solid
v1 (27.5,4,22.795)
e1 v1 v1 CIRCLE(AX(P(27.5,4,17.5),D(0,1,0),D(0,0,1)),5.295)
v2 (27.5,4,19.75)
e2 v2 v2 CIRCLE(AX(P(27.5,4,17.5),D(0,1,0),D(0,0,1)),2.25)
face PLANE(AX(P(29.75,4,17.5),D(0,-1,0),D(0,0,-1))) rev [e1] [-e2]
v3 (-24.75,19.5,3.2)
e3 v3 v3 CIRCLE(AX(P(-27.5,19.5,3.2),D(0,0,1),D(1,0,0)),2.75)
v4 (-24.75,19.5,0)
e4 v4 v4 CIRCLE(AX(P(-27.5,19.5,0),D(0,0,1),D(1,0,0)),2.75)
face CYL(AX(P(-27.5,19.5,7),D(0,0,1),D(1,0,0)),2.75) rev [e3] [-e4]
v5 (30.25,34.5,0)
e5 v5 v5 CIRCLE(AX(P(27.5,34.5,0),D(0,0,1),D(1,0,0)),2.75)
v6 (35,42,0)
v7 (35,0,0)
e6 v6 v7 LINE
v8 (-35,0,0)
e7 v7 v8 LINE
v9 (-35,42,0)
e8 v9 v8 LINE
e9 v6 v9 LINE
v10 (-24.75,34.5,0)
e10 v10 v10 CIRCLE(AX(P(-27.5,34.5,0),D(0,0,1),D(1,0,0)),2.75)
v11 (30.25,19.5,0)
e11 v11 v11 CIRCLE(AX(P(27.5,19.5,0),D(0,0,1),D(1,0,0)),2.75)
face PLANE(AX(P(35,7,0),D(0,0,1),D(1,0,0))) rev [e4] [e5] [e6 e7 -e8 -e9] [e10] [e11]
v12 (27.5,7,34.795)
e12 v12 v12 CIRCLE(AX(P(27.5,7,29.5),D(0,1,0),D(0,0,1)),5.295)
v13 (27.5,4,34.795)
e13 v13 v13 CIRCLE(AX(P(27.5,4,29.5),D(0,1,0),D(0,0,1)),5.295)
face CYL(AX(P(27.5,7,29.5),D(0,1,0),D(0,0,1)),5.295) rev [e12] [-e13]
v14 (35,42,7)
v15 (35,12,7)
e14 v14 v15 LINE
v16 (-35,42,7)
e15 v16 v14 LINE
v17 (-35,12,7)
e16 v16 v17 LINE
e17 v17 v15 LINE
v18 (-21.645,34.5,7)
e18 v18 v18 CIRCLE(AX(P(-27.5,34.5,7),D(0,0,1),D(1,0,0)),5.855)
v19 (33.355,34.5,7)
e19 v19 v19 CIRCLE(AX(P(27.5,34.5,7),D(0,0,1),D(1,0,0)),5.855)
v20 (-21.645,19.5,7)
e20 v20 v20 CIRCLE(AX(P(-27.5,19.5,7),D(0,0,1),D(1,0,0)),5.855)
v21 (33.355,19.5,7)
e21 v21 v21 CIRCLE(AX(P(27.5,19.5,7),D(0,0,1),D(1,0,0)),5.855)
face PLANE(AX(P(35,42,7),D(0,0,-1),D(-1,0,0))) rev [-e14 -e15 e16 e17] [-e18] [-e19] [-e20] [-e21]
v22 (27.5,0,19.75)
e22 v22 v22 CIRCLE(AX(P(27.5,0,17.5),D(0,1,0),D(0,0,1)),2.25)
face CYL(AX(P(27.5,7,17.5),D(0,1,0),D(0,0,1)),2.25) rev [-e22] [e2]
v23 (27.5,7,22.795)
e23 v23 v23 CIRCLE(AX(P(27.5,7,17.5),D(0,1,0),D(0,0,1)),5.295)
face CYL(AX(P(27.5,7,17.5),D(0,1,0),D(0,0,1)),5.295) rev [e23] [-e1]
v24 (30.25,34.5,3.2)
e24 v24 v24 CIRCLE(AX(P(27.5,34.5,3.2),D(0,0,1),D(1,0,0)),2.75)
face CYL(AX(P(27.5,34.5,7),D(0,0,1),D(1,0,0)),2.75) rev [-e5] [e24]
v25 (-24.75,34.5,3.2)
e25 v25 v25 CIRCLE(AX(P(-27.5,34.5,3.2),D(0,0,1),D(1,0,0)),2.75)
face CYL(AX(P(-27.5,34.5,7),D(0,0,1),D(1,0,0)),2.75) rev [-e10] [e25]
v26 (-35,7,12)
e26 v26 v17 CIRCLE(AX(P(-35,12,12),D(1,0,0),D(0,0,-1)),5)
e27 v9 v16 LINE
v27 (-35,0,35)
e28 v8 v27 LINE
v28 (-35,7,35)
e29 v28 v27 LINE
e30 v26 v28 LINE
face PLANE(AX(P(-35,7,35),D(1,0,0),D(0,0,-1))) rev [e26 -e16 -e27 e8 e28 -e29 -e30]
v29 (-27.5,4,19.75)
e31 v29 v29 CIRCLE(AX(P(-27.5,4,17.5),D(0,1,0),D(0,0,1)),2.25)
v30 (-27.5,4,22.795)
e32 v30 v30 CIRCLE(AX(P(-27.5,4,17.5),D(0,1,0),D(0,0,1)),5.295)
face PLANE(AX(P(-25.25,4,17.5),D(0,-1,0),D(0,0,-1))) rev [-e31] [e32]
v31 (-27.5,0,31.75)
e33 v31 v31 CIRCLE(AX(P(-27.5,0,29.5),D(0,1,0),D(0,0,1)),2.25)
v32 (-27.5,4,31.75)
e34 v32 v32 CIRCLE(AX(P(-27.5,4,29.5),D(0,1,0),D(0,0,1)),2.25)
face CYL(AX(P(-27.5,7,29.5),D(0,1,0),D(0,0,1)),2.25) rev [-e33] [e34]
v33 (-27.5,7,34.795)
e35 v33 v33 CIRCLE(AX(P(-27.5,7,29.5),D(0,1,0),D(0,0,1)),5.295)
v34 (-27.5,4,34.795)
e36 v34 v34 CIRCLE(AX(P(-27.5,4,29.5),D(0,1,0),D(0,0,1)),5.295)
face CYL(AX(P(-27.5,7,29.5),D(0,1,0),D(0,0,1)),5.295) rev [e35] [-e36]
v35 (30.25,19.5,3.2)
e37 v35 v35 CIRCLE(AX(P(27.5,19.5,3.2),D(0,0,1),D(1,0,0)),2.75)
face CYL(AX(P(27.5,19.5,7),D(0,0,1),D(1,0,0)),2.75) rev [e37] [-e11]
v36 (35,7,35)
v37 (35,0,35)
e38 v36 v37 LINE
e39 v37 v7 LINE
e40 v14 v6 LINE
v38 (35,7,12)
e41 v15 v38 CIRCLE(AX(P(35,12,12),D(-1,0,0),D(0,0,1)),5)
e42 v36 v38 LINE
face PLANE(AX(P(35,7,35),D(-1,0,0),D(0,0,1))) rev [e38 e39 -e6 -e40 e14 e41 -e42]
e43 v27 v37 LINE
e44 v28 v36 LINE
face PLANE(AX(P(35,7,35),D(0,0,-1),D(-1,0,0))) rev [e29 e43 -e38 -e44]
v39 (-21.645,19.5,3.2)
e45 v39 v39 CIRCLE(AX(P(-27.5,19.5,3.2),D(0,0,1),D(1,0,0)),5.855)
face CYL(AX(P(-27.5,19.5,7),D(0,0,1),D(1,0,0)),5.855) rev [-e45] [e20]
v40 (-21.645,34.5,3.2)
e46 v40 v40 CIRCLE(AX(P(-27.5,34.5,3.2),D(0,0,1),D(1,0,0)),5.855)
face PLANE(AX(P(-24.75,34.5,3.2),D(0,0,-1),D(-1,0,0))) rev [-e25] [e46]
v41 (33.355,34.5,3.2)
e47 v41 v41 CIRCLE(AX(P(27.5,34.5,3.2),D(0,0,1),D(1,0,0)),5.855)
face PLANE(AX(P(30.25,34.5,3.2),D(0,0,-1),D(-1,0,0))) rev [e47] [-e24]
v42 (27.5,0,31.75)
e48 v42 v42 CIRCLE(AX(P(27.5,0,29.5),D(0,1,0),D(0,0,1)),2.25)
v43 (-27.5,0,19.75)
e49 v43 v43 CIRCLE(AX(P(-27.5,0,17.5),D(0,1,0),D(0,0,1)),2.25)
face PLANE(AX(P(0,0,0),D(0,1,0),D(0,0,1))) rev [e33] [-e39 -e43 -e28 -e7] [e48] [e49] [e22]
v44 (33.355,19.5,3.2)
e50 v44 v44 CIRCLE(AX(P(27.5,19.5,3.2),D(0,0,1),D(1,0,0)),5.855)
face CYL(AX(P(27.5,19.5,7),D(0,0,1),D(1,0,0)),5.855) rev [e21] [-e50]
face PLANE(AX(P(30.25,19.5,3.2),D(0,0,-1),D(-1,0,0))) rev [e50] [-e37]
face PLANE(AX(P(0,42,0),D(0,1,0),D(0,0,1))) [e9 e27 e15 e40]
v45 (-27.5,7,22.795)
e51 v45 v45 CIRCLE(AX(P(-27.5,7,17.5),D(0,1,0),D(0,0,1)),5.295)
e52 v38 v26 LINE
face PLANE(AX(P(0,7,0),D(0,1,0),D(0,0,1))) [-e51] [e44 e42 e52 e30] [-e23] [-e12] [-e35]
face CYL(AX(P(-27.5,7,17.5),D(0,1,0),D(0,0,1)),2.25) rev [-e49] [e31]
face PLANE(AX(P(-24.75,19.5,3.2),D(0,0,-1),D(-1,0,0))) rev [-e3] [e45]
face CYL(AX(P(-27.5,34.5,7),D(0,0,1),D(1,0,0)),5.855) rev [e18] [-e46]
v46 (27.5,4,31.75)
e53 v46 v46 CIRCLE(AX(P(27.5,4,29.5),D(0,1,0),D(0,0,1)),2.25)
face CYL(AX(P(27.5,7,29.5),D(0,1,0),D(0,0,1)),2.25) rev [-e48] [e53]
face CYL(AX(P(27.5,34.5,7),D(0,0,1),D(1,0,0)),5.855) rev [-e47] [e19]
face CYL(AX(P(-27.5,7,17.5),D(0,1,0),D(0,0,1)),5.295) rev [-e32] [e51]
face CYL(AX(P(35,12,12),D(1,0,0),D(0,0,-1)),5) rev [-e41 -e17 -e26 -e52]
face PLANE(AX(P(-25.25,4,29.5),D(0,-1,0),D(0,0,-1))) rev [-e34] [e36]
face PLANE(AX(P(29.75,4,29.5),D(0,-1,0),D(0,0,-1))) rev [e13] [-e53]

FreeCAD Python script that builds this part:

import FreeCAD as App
import Part
import Sketcher

V = App.Vector
Q = App.Units.Quantity


def edges_at(feature, points):
    """Names of the edges that pass closest to the given points."""
    edges = feature.Shape.Edges
    near = lambda p: min(range(len(edges)), key=lambda i: edges[i].distToShape(Part.Vertex(*p))[0])
    return sorted({f"Edge{near(p) + 1}" for p in points})

doc = App.newDocument("Part")
body = doc.addObject("PartDesign::Body", "Body")

# Sketch on XZ plane
sketch1 = body.newObject("Sketcher::SketchObject", "Sketch")
sketch1.AttachmentSupport = (doc.getObject("XZ_Plane"), [""])
sketch1.MapMode = "FlatFace"
sketch1.addGeometry([
    Part.LineSegment(V(-35, 0, 0), V(-35, 35, 0)),
    Part.LineSegment(V(-35, 35, 0), V(35, 35, 0)),
    Part.LineSegment(V(35, 35, 0), V(35, 0, 0)),
    Part.LineSegment(V(35, 0, 0), V(-35, 0, 0)),
], False)
sketch1.addConstraint([
    Sketcher.Constraint("Coincident", 0, 2, 1, 1),
    Sketcher.Constraint("Coincident", 1, 2, 2, 1),
    Sketcher.Constraint("Coincident", 2, 2, 3, 1),
    Sketcher.Constraint("Coincident", 3, 2, 0, 1),
    Sketcher.Constraint("Vertical", 0),
    Sketcher.Constraint("Horizontal", 1),
    Sketcher.Constraint("Vertical", 2),
    Sketcher.Constraint("Horizontal", 3),
    Sketcher.Constraint("Symmetric", 2, 2, 3, 2, -1, 1),
    Sketcher.Constraint("DistanceX", 1, 1, 1, 2, Q("70 mm")),
    Sketcher.Constraint("DistanceY", 0, 1, 0, 2, Q("35 mm")),
])
pad1 = body.newObject("PartDesign::Pad", "Pad")
pad1.Profile = sketch1
pad1.Length = 7
pad1.Reversed = True

# Sketch on XZ plane
sketch2 = body.newObject("Sketcher::SketchObject", "Sketch001")
sketch2.AttachmentSupport = (doc.getObject("XZ_Plane"), [""])
sketch2.MapMode = "FlatFace"
sketch2.AttachmentOffset = App.Placement(V(0, 0, -7), App.Rotation())
sketch2.addGeometry([
    Part.LineSegment(V(-35, 0, 0), V(-35, 7, 0)),
    Part.LineSegment(V(-35, 7, 0), V(35, 7, 0)),
    Part.LineSegment(V(35, 7, 0), V(35, 0, 0)),
    Part.LineSegment(V(35, 0, 0), V(-35, 0, 0)),
], False)
sketch2.addConstraint([
    Sketcher.Constraint("Coincident", 0, 2, 1, 1),
    Sketcher.Constraint("Coincident", 1, 2, 2, 1),
    Sketcher.Constraint("Coincident", 2, 2, 3, 1),
    Sketcher.Constraint("Coincident", 3, 2, 0, 1),
    Sketcher.Constraint("Vertical", 0),
    Sketcher.Constraint("Horizontal", 1),
    Sketcher.Constraint("Vertical", 2),
    Sketcher.Constraint("Horizontal", 3),
    Sketcher.Constraint("Symmetric", 2, 2, 3, 2, -1, 1),
    Sketcher.Constraint("DistanceX", 1, 1, 1, 2, Q("70 mm")),
    Sketcher.Constraint("DistanceY", 0, 1, 0, 2, Q("7 mm")),
])
pad2 = body.newObject("PartDesign::Pad", "Pad001")
pad2.Profile = sketch2
pad2.Length = 35
pad2.Reversed = True
doc.recompute()

fillet = body.newObject("PartDesign::Fillet", "Fillet")
fillet.Base = (pad2, edges_at(pad2, [(0, 7, 7)]))
fillet.Radius = 5

# Sketch on XY plane
sketch3 = body.newObject("Sketcher::SketchObject", "Sketch002")
sketch3.AttachmentSupport = (doc.getObject("XY_Plane"), [""])
sketch3.MapMode = "FlatFace"
sketch3.AttachmentOffset = App.Placement(V(0, 0, 7), App.Rotation())
sketch3.addGeometry([
    Part.Circle(V(-27.5, 34.5, 0), V(0, 0, 1), 2.8),
    Part.Circle(V(27.5, 34.5, 0), V(0, 0, 1), 2.8),
    Part.Circle(V(27.5, 19.5, 0), V(0, 0, 1), 2.8),
    Part.Circle(V(-27.5, 19.5, 0), V(0, 0, 1), 2.8),
], False)
sketch3.addConstraint([
    Sketcher.Constraint("Equal", 0, 1),
    Sketcher.Constraint("Equal", 1, 2),
    Sketcher.Constraint("Equal", 2, 3),
    Sketcher.Constraint("Symmetric", 0, 3, 1, 3, -2),
    Sketcher.Constraint("Symmetric", 2, 3, 3, 3, -2),
    Sketcher.Constraint("Vertical", 1, 3, 2, 3),
    Sketcher.Constraint("Diameter", 0, Q("5.5 mm")),
    Sketcher.Constraint("DistanceX", 0, 3, 1, 3, Q("55 mm")),
    Sketcher.Constraint("DistanceY", 2, 3, 1, 3, Q("15 mm")),
    Sketcher.Constraint("DistanceY", -1, 1, 0, 3, Q("34.5 mm")),
])
doc.recompute()
hole = body.newObject("PartDesign::Hole", "Hole")
hole.Profile = sketch3
hole.ThreadType = "None"
hole.Diameter = 5.5
hole.DepthType = "ThroughAll"
hole.HoleCutType = "Counterbore"
hole.HoleCutDiameter = 11.71
hole.HoleCutDepth = 3.8

# Sketch on XZ plane
sketch4 = body.newObject("Sketcher::SketchObject", "Sketch003")
sketch4.AttachmentSupport = (doc.getObject("XZ_Plane"), [""])
sketch4.MapMode = "FlatFace"
sketch4.AttachmentOffset = App.Placement(V(0, 0, -7), App.Rotation())
sketch4.addGeometry([
    Part.Circle(V(-27.5, 17.5, 0), V(0, 0, 1), 2.2),
    Part.Circle(V(-27.5, 29.5, 0), V(0, 0, 1), 2.2),
    Part.Circle(V(27.5, 17.5, 0), V(0, 0, 1), 2.2),
    Part.Circle(V(27.5, 29.5, 0), V(0, 0, 1), 2.2),
], False)
sketch4.addConstraint([
    Sketcher.Constraint("Equal", 0, 1),
    Sketcher.Constraint("Equal", 1, 2),
    Sketcher.Constraint("Equal", 2, 3),
    Sketcher.Constraint("Symmetric", 0, 3, 2, 3, -2),
    Sketcher.Constraint("Symmetric", 1, 3, 3, 3, -2),
    Sketcher.Constraint("Vertical", 0, 3, 1, 3),
    Sketcher.Constraint("Diameter", 0, Q("4.5 mm")),
    Sketcher.Constraint("DistanceY", 0, 3, 1, 3, Q("12 mm")),
    Sketcher.Constraint("DistanceX", 0, 3, 2, 3, Q("55 mm")),
    Sketcher.Constraint("DistanceY", -1, 1, 0, 3, Q("17.5 mm")),
])
doc.recompute()
hole2 = body.newObject("PartDesign::Hole", "Hole001")
hole2.Profile = sketch4
hole2.ThreadType = "None"
hole2.Diameter = 4.5
hole2.DepthType = "ThroughAll"
hole2.HoleCutType = "Counterbore"
hole2.HoleCutDiameter = 10.59
hole2.HoleCutDepth = 3
hole2.Reversed = True

doc.recompute()
